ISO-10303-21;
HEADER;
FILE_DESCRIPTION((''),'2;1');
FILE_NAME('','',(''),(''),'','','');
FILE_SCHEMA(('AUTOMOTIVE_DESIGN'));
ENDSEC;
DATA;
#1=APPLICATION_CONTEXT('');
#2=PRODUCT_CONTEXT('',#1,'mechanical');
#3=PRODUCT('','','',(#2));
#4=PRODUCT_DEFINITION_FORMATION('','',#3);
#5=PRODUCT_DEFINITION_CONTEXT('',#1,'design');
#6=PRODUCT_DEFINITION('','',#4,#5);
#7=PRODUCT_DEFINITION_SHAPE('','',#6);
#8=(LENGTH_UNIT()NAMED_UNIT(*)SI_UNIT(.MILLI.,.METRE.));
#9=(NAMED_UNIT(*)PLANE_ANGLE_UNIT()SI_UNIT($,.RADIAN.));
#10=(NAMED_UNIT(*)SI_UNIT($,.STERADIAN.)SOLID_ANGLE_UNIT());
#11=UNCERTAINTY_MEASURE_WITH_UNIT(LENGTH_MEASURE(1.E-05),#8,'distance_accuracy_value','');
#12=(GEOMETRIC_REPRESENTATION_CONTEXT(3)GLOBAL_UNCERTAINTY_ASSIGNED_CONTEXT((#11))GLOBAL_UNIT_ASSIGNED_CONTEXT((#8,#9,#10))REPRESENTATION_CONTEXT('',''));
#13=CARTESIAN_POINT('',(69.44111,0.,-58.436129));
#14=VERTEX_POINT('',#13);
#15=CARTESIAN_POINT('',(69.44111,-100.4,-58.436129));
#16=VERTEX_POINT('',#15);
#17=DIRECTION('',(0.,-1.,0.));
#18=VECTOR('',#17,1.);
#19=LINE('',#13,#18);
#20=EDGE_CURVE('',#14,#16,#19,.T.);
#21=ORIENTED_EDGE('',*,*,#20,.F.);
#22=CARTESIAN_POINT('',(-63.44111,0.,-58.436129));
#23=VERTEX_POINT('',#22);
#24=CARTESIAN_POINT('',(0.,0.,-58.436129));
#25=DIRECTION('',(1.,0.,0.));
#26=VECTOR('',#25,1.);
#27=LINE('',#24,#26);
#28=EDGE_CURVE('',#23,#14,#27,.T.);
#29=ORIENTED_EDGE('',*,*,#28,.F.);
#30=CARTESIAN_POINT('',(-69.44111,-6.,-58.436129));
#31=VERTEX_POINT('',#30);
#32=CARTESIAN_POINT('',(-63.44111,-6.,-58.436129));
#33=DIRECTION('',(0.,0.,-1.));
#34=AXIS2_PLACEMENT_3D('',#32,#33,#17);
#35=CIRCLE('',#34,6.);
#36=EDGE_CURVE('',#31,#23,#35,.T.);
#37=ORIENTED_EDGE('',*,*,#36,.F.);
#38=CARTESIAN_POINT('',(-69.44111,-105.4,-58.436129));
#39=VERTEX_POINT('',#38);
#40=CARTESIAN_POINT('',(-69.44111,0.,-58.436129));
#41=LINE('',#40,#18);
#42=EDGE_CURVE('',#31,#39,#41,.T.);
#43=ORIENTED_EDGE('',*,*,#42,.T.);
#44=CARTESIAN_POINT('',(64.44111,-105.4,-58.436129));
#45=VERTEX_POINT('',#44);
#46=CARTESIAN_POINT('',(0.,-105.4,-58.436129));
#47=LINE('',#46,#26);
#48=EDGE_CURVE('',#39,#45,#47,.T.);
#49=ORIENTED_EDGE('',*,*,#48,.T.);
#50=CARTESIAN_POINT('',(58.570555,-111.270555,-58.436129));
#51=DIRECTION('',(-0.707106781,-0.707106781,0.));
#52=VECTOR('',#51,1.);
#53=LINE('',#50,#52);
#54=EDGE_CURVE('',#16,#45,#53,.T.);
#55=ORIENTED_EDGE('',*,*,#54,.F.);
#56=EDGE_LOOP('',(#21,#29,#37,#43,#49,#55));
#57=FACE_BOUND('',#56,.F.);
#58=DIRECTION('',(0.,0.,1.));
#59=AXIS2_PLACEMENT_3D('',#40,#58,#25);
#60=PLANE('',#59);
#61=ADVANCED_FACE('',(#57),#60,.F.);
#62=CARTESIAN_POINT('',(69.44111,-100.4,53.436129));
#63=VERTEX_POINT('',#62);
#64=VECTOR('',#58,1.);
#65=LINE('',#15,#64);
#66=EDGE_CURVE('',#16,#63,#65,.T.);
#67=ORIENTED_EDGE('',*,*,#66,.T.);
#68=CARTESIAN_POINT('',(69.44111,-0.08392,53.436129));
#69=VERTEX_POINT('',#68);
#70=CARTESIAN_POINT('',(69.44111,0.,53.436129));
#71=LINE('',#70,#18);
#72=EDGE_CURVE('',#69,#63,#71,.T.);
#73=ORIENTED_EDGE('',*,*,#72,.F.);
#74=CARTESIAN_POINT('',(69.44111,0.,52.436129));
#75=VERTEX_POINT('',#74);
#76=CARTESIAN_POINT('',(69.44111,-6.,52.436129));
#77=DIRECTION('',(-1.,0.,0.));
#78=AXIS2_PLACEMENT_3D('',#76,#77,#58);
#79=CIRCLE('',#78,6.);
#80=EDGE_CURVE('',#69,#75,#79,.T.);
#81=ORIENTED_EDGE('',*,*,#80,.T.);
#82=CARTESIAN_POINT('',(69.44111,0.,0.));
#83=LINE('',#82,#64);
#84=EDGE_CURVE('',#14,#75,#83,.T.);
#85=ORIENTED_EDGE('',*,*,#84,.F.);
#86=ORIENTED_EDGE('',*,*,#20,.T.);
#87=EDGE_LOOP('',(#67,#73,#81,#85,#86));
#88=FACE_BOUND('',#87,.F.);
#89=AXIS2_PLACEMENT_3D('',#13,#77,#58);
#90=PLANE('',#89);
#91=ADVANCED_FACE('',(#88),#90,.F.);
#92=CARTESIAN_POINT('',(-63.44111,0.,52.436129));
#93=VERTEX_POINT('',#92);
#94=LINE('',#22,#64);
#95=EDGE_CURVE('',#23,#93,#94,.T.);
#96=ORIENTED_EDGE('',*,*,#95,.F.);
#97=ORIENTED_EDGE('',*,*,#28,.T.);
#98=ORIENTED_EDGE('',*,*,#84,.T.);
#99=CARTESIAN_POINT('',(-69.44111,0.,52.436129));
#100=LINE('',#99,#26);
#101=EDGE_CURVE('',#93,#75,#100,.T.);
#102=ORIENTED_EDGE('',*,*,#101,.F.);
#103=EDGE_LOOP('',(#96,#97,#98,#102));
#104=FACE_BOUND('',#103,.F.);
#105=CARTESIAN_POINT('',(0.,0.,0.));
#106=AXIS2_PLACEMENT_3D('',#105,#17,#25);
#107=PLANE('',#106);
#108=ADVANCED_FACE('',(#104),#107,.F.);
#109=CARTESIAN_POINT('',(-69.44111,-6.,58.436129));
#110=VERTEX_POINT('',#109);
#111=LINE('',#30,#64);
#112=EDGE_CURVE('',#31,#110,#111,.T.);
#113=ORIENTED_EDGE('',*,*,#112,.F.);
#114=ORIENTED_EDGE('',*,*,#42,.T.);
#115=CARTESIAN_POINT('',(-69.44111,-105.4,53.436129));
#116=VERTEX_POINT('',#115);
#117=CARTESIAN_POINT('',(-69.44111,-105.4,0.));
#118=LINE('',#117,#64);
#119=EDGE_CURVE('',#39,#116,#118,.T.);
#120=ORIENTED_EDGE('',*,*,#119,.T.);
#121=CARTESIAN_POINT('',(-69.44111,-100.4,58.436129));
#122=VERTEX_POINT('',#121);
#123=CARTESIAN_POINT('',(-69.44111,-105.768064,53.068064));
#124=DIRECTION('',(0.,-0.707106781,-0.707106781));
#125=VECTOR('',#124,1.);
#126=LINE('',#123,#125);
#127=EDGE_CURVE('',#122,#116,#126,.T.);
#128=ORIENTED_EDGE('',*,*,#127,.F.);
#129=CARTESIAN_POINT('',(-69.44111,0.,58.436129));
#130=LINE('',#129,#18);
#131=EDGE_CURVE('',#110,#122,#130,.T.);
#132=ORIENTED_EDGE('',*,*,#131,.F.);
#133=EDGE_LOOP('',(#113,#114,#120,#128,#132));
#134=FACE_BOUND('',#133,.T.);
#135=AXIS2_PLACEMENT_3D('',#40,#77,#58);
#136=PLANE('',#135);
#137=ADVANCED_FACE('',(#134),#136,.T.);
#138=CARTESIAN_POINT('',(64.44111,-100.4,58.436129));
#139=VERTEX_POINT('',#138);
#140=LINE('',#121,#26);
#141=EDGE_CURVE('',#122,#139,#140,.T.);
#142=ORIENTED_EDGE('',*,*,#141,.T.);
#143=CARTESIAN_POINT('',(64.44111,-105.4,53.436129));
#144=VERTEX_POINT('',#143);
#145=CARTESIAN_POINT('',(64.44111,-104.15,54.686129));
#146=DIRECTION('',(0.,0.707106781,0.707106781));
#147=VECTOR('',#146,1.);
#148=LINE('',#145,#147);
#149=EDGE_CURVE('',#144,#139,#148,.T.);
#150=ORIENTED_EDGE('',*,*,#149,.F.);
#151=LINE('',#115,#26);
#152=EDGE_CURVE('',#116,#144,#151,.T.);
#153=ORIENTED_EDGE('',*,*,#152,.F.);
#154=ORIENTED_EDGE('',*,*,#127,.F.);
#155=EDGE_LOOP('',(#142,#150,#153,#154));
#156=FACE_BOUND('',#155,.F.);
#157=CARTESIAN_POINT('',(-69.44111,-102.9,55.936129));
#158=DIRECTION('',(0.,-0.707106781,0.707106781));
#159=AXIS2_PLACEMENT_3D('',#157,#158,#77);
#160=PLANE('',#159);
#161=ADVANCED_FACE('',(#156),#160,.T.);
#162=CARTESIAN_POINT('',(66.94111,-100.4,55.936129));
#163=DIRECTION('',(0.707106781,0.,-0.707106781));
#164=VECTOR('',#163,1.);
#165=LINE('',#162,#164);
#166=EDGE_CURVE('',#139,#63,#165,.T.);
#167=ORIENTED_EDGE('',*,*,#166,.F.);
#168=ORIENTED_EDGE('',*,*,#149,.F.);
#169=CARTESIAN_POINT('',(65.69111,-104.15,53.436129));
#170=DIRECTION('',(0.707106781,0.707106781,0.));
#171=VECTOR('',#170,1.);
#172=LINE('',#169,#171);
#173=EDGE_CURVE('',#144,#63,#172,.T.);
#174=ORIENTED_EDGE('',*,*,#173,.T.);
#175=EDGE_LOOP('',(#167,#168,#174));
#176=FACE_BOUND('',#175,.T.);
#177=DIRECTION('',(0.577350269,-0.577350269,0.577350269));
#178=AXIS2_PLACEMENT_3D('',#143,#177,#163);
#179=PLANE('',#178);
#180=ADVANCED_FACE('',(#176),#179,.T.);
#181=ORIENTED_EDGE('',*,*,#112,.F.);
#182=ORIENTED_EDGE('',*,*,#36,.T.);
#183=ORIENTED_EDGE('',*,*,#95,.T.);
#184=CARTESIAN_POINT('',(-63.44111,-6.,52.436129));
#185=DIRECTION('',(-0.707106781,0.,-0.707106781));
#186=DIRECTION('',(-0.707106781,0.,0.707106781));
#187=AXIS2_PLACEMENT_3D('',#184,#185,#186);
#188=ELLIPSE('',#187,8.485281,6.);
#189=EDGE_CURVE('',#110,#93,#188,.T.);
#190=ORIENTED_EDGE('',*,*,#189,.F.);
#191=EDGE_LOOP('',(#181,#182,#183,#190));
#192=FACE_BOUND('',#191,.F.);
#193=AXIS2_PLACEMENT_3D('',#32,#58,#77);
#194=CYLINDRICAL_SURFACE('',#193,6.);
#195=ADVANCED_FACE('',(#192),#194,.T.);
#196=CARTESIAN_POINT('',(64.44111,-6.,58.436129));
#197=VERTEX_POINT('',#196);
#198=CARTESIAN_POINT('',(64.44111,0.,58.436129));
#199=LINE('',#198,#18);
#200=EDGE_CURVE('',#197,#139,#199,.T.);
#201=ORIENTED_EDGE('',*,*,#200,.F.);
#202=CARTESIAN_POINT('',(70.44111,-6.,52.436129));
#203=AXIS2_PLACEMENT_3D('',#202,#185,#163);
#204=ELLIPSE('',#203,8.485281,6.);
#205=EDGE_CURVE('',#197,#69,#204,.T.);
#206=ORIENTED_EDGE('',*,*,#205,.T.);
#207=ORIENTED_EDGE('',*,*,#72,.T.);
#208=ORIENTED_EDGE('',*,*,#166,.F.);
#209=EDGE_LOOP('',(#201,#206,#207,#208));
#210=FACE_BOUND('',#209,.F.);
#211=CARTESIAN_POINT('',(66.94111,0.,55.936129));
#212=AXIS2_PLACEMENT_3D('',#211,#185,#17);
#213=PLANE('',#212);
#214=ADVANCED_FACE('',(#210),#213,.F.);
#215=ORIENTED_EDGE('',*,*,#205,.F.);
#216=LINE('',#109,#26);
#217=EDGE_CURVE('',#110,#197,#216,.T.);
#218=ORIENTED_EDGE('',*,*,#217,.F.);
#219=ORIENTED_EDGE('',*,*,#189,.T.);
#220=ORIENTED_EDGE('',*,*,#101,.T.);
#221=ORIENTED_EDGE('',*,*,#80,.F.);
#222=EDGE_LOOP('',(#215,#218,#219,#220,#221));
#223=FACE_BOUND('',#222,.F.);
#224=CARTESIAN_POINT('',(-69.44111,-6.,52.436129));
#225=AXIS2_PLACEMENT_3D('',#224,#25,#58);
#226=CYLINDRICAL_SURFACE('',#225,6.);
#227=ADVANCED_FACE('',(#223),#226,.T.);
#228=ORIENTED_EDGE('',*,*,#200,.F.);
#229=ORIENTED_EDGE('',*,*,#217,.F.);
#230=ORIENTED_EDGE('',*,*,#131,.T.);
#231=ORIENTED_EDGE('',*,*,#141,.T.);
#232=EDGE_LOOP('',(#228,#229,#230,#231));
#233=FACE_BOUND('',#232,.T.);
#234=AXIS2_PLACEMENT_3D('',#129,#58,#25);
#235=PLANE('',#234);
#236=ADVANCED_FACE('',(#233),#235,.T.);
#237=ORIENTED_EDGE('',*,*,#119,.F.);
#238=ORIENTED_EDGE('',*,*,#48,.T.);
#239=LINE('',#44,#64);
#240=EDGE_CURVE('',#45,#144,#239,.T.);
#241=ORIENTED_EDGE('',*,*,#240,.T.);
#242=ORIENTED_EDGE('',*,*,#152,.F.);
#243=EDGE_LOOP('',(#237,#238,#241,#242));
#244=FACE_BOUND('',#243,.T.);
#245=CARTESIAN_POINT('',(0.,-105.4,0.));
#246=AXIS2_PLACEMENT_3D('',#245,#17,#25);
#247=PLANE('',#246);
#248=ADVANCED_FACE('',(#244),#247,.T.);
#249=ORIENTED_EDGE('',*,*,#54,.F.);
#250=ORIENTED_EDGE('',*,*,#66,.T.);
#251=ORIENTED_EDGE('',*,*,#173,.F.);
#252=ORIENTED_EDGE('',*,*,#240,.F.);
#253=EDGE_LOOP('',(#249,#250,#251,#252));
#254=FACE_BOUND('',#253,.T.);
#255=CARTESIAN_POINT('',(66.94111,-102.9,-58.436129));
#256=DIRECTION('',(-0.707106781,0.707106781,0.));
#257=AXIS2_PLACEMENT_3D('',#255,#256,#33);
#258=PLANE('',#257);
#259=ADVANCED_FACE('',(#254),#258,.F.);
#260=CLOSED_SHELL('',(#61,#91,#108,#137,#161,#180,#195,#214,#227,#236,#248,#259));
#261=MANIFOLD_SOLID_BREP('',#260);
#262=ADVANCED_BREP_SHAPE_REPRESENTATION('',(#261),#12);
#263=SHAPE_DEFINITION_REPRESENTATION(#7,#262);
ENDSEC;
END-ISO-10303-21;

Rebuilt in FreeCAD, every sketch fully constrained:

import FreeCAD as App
import Part
import Sketcher
Q = App.Units.Quantity


def edges_at(feature, points):
    """Names of the edges that pass closest to the given points."""
    edges = feature.Shape.Edges
    near = lambda p: min(range(len(edges)), key=lambda i: edges[i].distToShape(Part.Vertex(*p))[0])
    return sorted({f"Edge{near(p) + 1}" for p in points})


def add_polygon(sketch, points):
    """Adds a closed chain of lines whose ends are joined by coincident constraints."""
    first, n = sketch.GeometryCount, len(points)
    for a, b in zip(points, points[1:] + points[:1]):
        sketch.addGeometry(Part.LineSegment(App.Vector(*a, 0), App.Vector(*b, 0)), False)
    for i in range(n):
        sketch.addConstraint(Sketcher.Constraint("Coincident", first + i, 2, first + (i + 1) % n, 1))

doc = App.newDocument("Part")
body = doc.addObject("PartDesign::Body", "Body")

# Sketch on XZ plane
sketch1 = doc.addObject("Sketcher::SketchObject", "Sketch")
body.addObject(sketch1)
sketch1.AttachmentSupport = (doc.XZ_Plane, [""])
sketch1.MapMode = "FlatFace"
add_polygon(sketch1, [(-69.44111, 58.436129), (-69.44111, -58.436129), (69.44111, -58.436129), (69.44111, 58.436129)])  # lines 0-3
sketch1.addConstraint([
    Sketcher.Constraint("Vertical", 0),
    Sketcher.Constraint("Horizontal", 1),
    Sketcher.Constraint("Vertical", 2),
    Sketcher.Constraint("Horizontal", 3),
    Sketcher.Constraint("Symmetric", 0, 2, 2, 2, -1, 1),
    Sketcher.Constraint("DistanceX", 1, 1, 1, 2, Q("138.88222 mm")),
    Sketcher.Constraint("DistanceY", 0, 2, 0, 1, Q("116.872258 mm")),
])
pad1 = doc.addObject("PartDesign::Pad", "Pad")
body.addObject(pad1)
pad1.Profile = sketch1
pad1.Length = 105.4
doc.recompute()

chamfer = doc.addObject("PartDesign::Chamfer", "Chamfer")
body.addObject(chamfer)
chamfer.Base = (pad1, edges_at(pad1, [(69.441, -52.7, 58.436), (0, -105.4, 58.436), (69.441, -105.4, 0)]))
chamfer.Size = 5
doc.recompute()

fillet = doc.addObject("PartDesign::Fillet", "Fillet")
body.addObject(fillet)
fillet.Base = (chamfer, edges_at(chamfer, [(-69.441, 0, 0), (-2.5, 0, 58.436)]))
fillet.Radius = 6

doc.recompute()
